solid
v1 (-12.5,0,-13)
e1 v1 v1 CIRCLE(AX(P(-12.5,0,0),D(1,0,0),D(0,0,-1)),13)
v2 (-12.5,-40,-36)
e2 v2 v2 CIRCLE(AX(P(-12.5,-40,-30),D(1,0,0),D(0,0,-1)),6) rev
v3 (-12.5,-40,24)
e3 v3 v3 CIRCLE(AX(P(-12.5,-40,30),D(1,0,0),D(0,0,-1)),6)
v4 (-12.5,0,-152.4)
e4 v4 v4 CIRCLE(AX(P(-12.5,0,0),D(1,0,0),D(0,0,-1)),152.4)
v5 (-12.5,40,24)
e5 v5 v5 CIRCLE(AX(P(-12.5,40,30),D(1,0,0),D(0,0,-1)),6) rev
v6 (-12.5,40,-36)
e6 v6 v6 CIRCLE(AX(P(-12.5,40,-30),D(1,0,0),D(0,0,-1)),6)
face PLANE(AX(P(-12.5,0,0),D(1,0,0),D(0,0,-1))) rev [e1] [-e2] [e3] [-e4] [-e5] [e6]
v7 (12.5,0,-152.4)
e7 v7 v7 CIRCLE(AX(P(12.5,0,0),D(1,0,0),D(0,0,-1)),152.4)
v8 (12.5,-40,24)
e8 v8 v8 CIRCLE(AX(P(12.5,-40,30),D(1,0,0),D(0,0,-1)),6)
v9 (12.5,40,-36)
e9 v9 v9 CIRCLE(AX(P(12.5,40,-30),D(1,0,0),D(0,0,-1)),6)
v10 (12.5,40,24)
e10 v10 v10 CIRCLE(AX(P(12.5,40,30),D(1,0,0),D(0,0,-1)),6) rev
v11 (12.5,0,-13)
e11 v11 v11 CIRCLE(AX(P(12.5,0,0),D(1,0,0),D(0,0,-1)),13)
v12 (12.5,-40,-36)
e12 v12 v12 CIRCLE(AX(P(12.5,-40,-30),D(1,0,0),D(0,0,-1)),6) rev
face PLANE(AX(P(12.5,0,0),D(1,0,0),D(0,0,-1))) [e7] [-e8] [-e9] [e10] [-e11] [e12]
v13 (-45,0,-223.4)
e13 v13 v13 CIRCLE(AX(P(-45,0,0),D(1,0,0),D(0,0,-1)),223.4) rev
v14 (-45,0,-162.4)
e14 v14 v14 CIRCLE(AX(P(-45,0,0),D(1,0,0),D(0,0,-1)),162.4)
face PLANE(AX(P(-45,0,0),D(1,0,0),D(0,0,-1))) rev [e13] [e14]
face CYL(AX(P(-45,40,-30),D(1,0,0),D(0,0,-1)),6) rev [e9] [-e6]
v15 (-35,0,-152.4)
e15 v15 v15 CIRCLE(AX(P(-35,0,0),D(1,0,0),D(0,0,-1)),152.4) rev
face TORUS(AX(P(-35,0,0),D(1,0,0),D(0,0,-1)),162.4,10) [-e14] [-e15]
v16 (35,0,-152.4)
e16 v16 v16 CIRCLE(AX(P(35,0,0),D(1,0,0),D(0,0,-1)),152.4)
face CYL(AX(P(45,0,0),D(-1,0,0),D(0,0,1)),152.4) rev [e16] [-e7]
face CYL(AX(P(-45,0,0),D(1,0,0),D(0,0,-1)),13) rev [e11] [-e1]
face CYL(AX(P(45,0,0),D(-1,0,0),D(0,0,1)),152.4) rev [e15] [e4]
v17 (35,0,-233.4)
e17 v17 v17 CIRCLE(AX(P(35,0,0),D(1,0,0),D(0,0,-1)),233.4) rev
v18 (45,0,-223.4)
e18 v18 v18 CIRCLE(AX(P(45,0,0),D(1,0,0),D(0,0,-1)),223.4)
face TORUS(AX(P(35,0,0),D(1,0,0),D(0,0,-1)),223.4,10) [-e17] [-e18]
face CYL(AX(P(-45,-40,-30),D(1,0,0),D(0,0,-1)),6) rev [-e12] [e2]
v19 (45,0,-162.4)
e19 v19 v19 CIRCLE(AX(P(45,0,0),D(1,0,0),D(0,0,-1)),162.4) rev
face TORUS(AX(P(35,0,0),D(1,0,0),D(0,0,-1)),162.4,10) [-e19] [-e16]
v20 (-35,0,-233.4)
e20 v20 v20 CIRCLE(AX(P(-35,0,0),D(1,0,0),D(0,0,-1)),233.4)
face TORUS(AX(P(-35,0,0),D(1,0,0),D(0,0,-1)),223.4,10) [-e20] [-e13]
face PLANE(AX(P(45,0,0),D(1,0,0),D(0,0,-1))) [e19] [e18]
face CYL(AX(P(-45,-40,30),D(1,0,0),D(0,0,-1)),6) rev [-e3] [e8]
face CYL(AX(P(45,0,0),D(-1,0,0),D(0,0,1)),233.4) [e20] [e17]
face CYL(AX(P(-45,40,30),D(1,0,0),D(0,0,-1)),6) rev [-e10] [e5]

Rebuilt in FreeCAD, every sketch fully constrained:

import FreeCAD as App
import Part
import Sketcher

V = App.Vector
Q = App.Units.Quantity


def edges_at(feature, points):
    """Names of the edges that pass closest to the given points."""
    edges = feature.Shape.Edges
    near = lambda p: min(range(len(edges)), key=lambda i: edges[i].distToShape(Part.Vertex(*p))[0])
    return sorted({f"Edge{near(p) + 1}" for p in points})

doc = App.newDocument("Part")
body = doc.addObject("PartDesign::Body", "Body")

# Sketch on YZ plane
sketch1 = body.newObject("Sketcher::SketchObject", "Sketch")
sketch1.AttachmentSupport = (doc.getObject("YZ_Plane"), [""])
sketch1.MapMode = "FlatFace"
sketch1.addGeometry(Part.Circle(V(0, 0, 0), V(0, 0, 1), 233.4), False)
sketch1.addGeometry(Part.Circle(V(0, 0, 0), V(0, 0, 1), 152.4), False)
sketch1.addConstraint(Sketcher.Constraint("Coincident", 0, 3, -1, 1))
sketch1.addConstraint(Sketcher.Constraint("Coincident", 1, 3, -1, 1))
sketch1.addConstraint(Sketcher.Constraint("Diameter", 0, Q("466.8 mm")))
sketch1.addConstraint(Sketcher.Constraint("Diameter", 1, Q("304.8 mm")))
pad1 = body.newObject("PartDesign::Pad", "Pad")
pad1.Profile = sketch1
pad1.Length = 90
pad1.Midplane = True

# Sketch on YZ plane
sketch2 = body.newObject("Sketcher::SketchObject", "Sketch001")
sketch2.AttachmentSupport = (doc.getObject("YZ_Plane"), [""])
sketch2.MapMode = "FlatFace"
sketch2.addGeometry(Part.Circle(V(0, 0, 0), V(0, 0, 1), 152.4), False)
sketch2.addConstraint(Sketcher.Constraint("Coincident", 0, 3, -1, 1))
sketch2.addConstraint(Sketcher.Constraint("Diameter", 0, Q("304.8 mm")))
pad2 = body.newObject("PartDesign::Pad", "Pad001")
pad2.Profile = sketch2
pad2.Length = 25
pad2.Midplane = True
doc.recompute()

fillet = body.newObject("PartDesign::Fillet", "Fillet")
fillet.Base = (pad2, edges_at(pad2, [(45, 0, 233.4)]))
fillet.Radius = 10
doc.recompute()

fillet2 = body.newObject("PartDesign::Fillet", "Fillet001")
fillet2.Base = (fillet, edges_at(fillet, [(-45, 0, 233.4), (45, 0, 152.4)]))
fillet2.Radius = 10
doc.recompute()

fillet3 = body.newObject("PartDesign::Fillet", "Fillet002")
fillet3.Base = (fillet2, edges_at(fillet2, [(-45, 0, 152.4)]))
fillet3.Radius = 10

# Sketch on YZ plane
sketch3 = body.newObject("Sketcher::SketchObject", "Sketch002")
sketch3.AttachmentSupport = (doc.getObject("YZ_Plane"), [""])
sketch3.MapMode = "FlatFace"
sketch3.addGeometry(Part.Circle(V(0, 0, 0), V(0, 0, 1), 13), False)
sketch3.addGeometry(Part.Circle(V(40, -30, 0), V(0, 0, 1), 6), False)
sketch3.addGeometry(Part.Circle(V(40, 30, 0), V(0, 0, 1), 6), False)
sketch3.addGeometry(Part.Circle(V(-40, 30, 0), V(0, 0, 1), 6), False)
sketch3.addGeometry(Part.Circle(V(-40, -30, 0), V(0, 0, 1), 6), False)
sketch3.addConstraint(Sketcher.Constraint("Coincident", 0, 3, -1, 1))
sketch3.addConstraint(Sketcher.Constraint("Equal", 1, 2))
sketch3.addConstraint(Sketcher.Constraint("Equal", 2, 3))
sketch3.addConstraint(Sketcher.Constraint("Equal", 3, 4))
sketch3.addConstraint(Sketcher.Constraint("Symmetric", 1, 3, 3, 3, -1, 1))
sketch3.addConstraint(Sketcher.Constraint("Symmetric", 2, 3, 4, 3, -1, 1))
sketch3.addConstraint(Sketcher.Constraint("Symmetric", 2, 3, 3, 3, -2))
sketch3.addConstraint(Sketcher.Constraint("Diameter", 0, Q("26 mm")))
sketch3.addConstraint(Sketcher.Constraint("Diameter", 1, Q("12 mm")))
sketch3.addConstraint(Sketcher.Constraint("DistanceX", -1, 1, 1, 3, Q("40 mm")))
sketch3.addConstraint(Sketcher.Constraint("DistanceY", 1, 3, -1, 1, Q("30 mm")))
pocket1 = body.newObject("PartDesign::Pocket", "Pocket")
pocket1.Profile = sketch3
pocket1.Type = "ThroughAll"
pocket1.Midplane = True

doc.recompute()
